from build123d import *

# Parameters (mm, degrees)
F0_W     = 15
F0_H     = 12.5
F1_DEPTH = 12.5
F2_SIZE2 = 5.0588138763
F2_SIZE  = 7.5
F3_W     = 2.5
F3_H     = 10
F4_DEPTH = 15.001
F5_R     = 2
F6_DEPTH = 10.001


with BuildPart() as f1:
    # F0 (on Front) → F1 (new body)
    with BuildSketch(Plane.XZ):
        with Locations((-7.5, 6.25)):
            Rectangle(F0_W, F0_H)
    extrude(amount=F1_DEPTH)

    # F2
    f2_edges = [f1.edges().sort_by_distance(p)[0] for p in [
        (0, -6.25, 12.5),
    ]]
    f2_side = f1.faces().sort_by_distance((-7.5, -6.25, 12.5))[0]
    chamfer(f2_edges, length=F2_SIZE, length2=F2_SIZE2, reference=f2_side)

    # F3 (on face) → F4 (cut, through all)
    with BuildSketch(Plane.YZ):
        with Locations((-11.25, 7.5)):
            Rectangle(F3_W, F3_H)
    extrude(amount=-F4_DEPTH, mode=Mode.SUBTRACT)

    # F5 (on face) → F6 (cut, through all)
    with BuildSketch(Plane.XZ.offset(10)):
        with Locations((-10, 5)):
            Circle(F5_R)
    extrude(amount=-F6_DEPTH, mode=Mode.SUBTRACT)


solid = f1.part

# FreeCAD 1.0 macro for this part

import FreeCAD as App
import Part
import Sketcher
from FreeCAD import Vector


def edges_at(feature, points):
    """Names of the edges that pass closest to the given points."""
    edges = feature.Shape.Edges
    near = lambda p: min(range(len(edges)), key=lambda i: edges[i].distToShape(Part.Vertex(*p))[0])
    return sorted({f"Edge{near(p) + 1}" for p in points})

doc = App.newDocument("Part")
body = doc.addObject("PartDesign::Body", "Body")

sketch1 = body.newObject("Sketcher::SketchObject", "Sketch")
sketch1.AttachmentSupport = (doc.getObject("XZ_Plane"), [""])
sketch1.MapMode = "FlatFace"
sketch1.addGeometry([
    Part.LineSegment(Vector(-15, 12.5, 0), Vector(-15, 0, 0)),
    Part.LineSegment(Vector(-15, 0, 0), Vector(0, 0, 0)),
    Part.LineSegment(Vector(0, 0, 0), Vector(0, 12.5, 0)),
    Part.LineSegment(Vector(0, 12.5, 0), Vector(-15, 12.5, 0)),
], False)
sketch1.addConstraint([
    Sketcher.Constraint("Coincident", 0, 2, 1, 1),
    Sketcher.Constraint("Coincident", 1, 2, 2, 1),
    Sketcher.Constraint("Coincident", 2, 2, 3, 1),
    Sketcher.Constraint("Coincident", 3, 2, 0, 1),
    Sketcher.Constraint("Vertical", 0),
    Sketcher.Constraint("Horizontal", 1),
    Sketcher.Constraint("Vertical", 2),
    Sketcher.Constraint("Horizontal", 3),
    Sketcher.Constraint("Coincident", 1, 2, -1, 1),
    Sketcher.Constraint("DistanceX", 1, 1, 1, 2, 15.0),
    Sketcher.Constraint("DistanceY", 0, 2, 0, 1, 12.5),
])
pad1 = body.newObject("PartDesign::Pad", "Pad")
pad1.Profile = sketch1
pad1.Length = 12.5
doc.recompute()

chamfer = body.newObject("PartDesign::Chamfer", "Chamfer")
chamfer.Base = (pad1, edges_at(pad1, [(0, -6.25, 12.5)]))
chamfer.ChamferType = "Two distances"
chamfer.Size = 7.5
chamfer.Size2 = 5.058814
chamfer.FlipDirection = True

sketch2 = body.newObject("Sketcher::SketchObject", "Sketch001")
sketch2.AttachmentSupport = (doc.getObject("YZ_Plane"), [""])
sketch2.MapMode = "FlatFace"
sketch2.addGeometry([
    Part.LineSegment(Vector(-12.5, 12.5, 0), Vector(-12.5, 2.5, 0)),
    Part.LineSegment(Vector(-12.5, 2.5, 0), Vector(-10, 2.5, 0)),
    Part.LineSegment(Vector(-10, 2.5, 0), Vector(-10, 12.5, 0)),
    Part.LineSegment(Vector(-10, 12.5, 0), Vector(-12.5, 12.5, 0)),
], False)
sketch2.addConstraint([
    Sketcher.Constraint("Coincident", 0, 2, 1, 1),
    Sketcher.Constraint("Coincident", 1, 2, 2, 1),
    Sketcher.Constraint("Coincident", 2, 2, 3, 1),
    Sketcher.Constraint("Coincident", 3, 2, 0, 1),
    Sketcher.Constraint("Vertical", 0),
    Sketcher.Constraint("Horizontal", 1),
    Sketcher.Constraint("Vertical", 2),
    Sketcher.Constraint("Horizontal", 3),
    Sketcher.Constraint("DistanceY", 0, 2, 0, 1, 10.0),
    Sketcher.Constraint("DistanceX", 1, 1, 1, 2, 2.5),
    Sketcher.Constraint("DistanceX", 1, 2, -1, 1, 10.0),
    Sketcher.Constraint("DistanceY", -1, 1, 0, 2, 2.5),
])
pocket1 = body.newObject("PartDesign::Pocket", "Pocket")
pocket1.Profile = sketch2
pocket1.Type = "ThroughAll"

sketch3 = body.newObject("Sketcher::SketchObject", "Sketch002")
sketch3.AttachmentSupport = (doc.getObject("XZ_Plane"), [""])
sketch3.MapMode = "FlatFace"
sketch3.AttachmentOffset = App.Placement(Vector(0, 0, 10), App.Rotation())
sketch3.addGeometry(Part.Circle(Vector(-10, 5, 0), Vector(0, 0, 1), 2), False)
sketch3.addConstraint([
    Sketcher.Constraint("Diameter", 0, 4.0),
    Sketcher.Constraint("DistanceX", 0, 3, -1, 1, 10.0),
    Sketcher.Constraint("DistanceY", -1, 1, 0, 3, 5.0),
])
pocket2 = body.newObject("PartDesign::Pocket", "Pocket001")
pocket2.Profile = sketch3
pocket2.Type = "ThroughAll"

doc.recompute()
